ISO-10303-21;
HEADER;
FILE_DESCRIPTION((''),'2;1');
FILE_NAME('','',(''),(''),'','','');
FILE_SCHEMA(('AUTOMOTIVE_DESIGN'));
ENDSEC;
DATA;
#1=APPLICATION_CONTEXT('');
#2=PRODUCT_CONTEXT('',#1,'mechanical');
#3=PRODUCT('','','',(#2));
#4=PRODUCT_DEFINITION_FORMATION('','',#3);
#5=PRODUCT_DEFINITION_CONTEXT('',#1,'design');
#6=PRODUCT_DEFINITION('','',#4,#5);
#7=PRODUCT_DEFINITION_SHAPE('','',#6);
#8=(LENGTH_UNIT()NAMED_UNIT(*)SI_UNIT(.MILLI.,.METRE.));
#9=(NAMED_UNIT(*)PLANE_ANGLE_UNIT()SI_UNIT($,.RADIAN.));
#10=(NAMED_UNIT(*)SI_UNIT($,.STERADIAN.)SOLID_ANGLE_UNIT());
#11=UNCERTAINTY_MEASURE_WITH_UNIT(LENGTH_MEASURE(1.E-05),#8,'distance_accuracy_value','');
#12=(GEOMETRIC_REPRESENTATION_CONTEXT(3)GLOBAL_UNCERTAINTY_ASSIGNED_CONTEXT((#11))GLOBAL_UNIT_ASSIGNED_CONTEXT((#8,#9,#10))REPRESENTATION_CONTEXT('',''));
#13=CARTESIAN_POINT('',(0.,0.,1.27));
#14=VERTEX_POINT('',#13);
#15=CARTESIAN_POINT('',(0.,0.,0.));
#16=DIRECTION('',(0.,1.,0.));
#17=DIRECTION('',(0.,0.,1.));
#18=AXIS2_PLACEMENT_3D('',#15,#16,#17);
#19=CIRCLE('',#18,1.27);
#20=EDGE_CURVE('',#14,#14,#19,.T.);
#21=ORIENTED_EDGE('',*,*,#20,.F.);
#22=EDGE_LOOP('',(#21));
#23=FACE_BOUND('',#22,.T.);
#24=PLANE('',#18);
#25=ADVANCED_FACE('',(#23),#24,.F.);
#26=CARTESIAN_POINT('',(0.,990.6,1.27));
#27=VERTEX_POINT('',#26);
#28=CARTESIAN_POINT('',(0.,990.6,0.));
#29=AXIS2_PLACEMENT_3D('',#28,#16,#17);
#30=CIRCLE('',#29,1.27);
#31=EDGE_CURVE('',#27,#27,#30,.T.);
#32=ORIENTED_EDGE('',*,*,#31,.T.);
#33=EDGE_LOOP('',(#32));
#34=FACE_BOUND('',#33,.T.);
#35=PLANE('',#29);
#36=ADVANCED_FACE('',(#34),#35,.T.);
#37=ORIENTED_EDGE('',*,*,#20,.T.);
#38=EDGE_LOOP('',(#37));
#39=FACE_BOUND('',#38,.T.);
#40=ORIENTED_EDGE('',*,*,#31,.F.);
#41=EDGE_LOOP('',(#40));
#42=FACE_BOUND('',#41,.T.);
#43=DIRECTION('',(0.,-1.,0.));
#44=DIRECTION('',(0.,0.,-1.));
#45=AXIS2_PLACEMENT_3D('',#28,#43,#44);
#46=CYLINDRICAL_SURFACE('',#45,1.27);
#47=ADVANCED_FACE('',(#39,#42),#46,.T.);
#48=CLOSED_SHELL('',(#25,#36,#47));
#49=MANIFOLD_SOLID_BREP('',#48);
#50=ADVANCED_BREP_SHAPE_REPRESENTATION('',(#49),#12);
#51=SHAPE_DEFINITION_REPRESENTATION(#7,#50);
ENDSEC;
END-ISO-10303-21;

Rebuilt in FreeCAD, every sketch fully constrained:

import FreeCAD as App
import Part
import Sketcher

V = App.Vector
Q = App.Units.Quantity

doc = App.newDocument("Part")
body = doc.addObject("PartDesign::Body", "Body")

# Sketch on XZ plane
sketch1 = body.newObject("Sketcher::SketchObject", "Sketch")
sketch1.AttachmentSupport = (doc.getObject("XZ_Plane"), [""])
sketch1.MapMode = "FlatFace"
sketch1.addGeometry(Part.Circle(V(0, 0, 0), V(0, 0, 1), 1.3), False)
sketch1.addConstraint(Sketcher.Constraint("Coincident", 0, 3, -1, 1))
sketch1.addConstraint(Sketcher.Constraint("Diameter", 0, Q("0.1 in")))
pad1 = body.newObject("PartDesign::Pad", "Pad")
pad1.Profile = sketch1
pad1.Length = Q("39 in")
pad1.Reversed = True

doc.recompute()
